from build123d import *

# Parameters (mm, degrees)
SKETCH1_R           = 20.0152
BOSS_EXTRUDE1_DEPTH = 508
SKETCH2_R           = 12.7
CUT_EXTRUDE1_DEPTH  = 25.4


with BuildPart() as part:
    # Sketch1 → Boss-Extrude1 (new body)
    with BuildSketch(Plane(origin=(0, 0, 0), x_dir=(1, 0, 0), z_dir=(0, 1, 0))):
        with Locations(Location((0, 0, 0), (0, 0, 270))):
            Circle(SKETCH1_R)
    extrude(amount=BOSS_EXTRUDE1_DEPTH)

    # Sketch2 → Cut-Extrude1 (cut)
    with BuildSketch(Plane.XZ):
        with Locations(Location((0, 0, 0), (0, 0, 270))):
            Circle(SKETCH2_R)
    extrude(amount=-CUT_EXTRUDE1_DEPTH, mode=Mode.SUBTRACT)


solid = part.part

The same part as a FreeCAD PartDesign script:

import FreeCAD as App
import Part
import Sketcher

V = App.Vector
Q = App.Units.Quantity

doc = App.newDocument("Part")
body = doc.addObject("PartDesign::Body", "Body")

sketch1 = doc.addObject("Sketcher::SketchObject", "Sketch")
body.addObject(sketch1)
sketch1.AttachmentSupport = (doc.XZ_Plane, [""])
sketch1.MapMode = "FlatFace"
sketch1.addGeometry(Part.Circle(V(0, 0, 0), V(0, 0, 1), 20), False)
sketch1.addConstraint(Sketcher.Constraint("Coincident", 0, 3, -1, 1))
sketch1.addConstraint(Sketcher.Constraint("Diameter", 0, Q("1.576 in")))
pad1 = doc.addObject("PartDesign::Pad", "Pad")
body.addObject(pad1)
pad1.Profile = sketch1
pad1.Length = Q("20 in")
pad1.Reversed = True

sketch2 = doc.addObject("Sketcher::SketchObject", "Sketch001")
body.addObject(sketch2)
sketch2.AttachmentSupport = (doc.XZ_Plane, [""])
sketch2.MapMode = "FlatFace"
sketch2.addGeometry(Part.Circle(V(0, 0, 0), V(0, 0, 1), 13), False)
sketch2.addConstraint(Sketcher.Constraint("Coincident", 0, 3, -1, 1))
sketch2.addConstraint(Sketcher.Constraint("Diameter", 0, Q("1 in")))
pocket1 = doc.addObject("PartDesign::Pocket", "Pocket")
body.addObject(pocket1)
pocket1.Profile = sketch2
pocket1.Length = Q("1 in")

doc.recompute()
